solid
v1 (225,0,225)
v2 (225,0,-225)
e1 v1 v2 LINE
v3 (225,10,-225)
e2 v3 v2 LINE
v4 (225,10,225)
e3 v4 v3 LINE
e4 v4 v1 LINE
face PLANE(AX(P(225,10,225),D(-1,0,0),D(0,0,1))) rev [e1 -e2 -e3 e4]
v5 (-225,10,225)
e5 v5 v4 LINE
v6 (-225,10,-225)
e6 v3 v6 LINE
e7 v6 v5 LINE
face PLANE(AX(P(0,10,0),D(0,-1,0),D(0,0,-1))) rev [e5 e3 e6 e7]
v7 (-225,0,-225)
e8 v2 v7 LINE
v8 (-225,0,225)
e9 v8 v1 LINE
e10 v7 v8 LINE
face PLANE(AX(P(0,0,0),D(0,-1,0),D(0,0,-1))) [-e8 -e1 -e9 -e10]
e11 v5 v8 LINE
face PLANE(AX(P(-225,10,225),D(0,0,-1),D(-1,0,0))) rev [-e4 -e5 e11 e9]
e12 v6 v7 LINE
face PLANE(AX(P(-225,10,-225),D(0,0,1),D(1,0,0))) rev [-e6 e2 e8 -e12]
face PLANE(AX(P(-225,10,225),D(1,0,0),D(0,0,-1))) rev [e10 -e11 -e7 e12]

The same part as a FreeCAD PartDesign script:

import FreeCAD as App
import Part
import Sketcher
Q = App.Units.Quantity


def add_polygon(sketch, points):
    """Adds a closed chain of lines whose ends are joined by coincident constraints."""
    first, n = sketch.GeometryCount, len(points)
    for a, b in zip(points, points[1:] + points[:1]):
        sketch.addGeometry(Part.LineSegment(App.Vector(*a, 0), App.Vector(*b, 0)), False)
    for i in range(n):
        sketch.addConstraint(Sketcher.Constraint("Coincident", first + i, 2, first + (i + 1) % n, 1))

doc = App.newDocument("Part")
body = doc.addObject("PartDesign::Body", "Body")

sketch1 = body.newObject("Sketcher::SketchObject", "Sketch")
sketch1.AttachmentSupport = (doc.getObject("XZ_Plane"), [""])
sketch1.MapMode = "FlatFace"
add_polygon(sketch1, [(-225, -225), (-225, 225), (225, 225), (225, -225)])
sketch1.addConstraint(Sketcher.Constraint("Vertical", 0))
sketch1.addConstraint(Sketcher.Constraint("Horizontal", 1))
sketch1.addConstraint(Sketcher.Constraint("Vertical", 2))
sketch1.addConstraint(Sketcher.Constraint("Horizontal", 3))
sketch1.addConstraint(Sketcher.Constraint("Symmetric", 0, 2, 2, 2, -1, 1))
sketch1.addConstraint(Sketcher.Constraint("Equal", 3, 0))
sketch1.addConstraint(Sketcher.Constraint("DistanceX", 1, 1, 1, 2, Q("450 mm")))
pad1 = body.newObject("PartDesign::Pad", "Pad")
pad1.Profile = sketch1
pad1.Length = 10
pad1.Reversed = True

doc.recompute()
